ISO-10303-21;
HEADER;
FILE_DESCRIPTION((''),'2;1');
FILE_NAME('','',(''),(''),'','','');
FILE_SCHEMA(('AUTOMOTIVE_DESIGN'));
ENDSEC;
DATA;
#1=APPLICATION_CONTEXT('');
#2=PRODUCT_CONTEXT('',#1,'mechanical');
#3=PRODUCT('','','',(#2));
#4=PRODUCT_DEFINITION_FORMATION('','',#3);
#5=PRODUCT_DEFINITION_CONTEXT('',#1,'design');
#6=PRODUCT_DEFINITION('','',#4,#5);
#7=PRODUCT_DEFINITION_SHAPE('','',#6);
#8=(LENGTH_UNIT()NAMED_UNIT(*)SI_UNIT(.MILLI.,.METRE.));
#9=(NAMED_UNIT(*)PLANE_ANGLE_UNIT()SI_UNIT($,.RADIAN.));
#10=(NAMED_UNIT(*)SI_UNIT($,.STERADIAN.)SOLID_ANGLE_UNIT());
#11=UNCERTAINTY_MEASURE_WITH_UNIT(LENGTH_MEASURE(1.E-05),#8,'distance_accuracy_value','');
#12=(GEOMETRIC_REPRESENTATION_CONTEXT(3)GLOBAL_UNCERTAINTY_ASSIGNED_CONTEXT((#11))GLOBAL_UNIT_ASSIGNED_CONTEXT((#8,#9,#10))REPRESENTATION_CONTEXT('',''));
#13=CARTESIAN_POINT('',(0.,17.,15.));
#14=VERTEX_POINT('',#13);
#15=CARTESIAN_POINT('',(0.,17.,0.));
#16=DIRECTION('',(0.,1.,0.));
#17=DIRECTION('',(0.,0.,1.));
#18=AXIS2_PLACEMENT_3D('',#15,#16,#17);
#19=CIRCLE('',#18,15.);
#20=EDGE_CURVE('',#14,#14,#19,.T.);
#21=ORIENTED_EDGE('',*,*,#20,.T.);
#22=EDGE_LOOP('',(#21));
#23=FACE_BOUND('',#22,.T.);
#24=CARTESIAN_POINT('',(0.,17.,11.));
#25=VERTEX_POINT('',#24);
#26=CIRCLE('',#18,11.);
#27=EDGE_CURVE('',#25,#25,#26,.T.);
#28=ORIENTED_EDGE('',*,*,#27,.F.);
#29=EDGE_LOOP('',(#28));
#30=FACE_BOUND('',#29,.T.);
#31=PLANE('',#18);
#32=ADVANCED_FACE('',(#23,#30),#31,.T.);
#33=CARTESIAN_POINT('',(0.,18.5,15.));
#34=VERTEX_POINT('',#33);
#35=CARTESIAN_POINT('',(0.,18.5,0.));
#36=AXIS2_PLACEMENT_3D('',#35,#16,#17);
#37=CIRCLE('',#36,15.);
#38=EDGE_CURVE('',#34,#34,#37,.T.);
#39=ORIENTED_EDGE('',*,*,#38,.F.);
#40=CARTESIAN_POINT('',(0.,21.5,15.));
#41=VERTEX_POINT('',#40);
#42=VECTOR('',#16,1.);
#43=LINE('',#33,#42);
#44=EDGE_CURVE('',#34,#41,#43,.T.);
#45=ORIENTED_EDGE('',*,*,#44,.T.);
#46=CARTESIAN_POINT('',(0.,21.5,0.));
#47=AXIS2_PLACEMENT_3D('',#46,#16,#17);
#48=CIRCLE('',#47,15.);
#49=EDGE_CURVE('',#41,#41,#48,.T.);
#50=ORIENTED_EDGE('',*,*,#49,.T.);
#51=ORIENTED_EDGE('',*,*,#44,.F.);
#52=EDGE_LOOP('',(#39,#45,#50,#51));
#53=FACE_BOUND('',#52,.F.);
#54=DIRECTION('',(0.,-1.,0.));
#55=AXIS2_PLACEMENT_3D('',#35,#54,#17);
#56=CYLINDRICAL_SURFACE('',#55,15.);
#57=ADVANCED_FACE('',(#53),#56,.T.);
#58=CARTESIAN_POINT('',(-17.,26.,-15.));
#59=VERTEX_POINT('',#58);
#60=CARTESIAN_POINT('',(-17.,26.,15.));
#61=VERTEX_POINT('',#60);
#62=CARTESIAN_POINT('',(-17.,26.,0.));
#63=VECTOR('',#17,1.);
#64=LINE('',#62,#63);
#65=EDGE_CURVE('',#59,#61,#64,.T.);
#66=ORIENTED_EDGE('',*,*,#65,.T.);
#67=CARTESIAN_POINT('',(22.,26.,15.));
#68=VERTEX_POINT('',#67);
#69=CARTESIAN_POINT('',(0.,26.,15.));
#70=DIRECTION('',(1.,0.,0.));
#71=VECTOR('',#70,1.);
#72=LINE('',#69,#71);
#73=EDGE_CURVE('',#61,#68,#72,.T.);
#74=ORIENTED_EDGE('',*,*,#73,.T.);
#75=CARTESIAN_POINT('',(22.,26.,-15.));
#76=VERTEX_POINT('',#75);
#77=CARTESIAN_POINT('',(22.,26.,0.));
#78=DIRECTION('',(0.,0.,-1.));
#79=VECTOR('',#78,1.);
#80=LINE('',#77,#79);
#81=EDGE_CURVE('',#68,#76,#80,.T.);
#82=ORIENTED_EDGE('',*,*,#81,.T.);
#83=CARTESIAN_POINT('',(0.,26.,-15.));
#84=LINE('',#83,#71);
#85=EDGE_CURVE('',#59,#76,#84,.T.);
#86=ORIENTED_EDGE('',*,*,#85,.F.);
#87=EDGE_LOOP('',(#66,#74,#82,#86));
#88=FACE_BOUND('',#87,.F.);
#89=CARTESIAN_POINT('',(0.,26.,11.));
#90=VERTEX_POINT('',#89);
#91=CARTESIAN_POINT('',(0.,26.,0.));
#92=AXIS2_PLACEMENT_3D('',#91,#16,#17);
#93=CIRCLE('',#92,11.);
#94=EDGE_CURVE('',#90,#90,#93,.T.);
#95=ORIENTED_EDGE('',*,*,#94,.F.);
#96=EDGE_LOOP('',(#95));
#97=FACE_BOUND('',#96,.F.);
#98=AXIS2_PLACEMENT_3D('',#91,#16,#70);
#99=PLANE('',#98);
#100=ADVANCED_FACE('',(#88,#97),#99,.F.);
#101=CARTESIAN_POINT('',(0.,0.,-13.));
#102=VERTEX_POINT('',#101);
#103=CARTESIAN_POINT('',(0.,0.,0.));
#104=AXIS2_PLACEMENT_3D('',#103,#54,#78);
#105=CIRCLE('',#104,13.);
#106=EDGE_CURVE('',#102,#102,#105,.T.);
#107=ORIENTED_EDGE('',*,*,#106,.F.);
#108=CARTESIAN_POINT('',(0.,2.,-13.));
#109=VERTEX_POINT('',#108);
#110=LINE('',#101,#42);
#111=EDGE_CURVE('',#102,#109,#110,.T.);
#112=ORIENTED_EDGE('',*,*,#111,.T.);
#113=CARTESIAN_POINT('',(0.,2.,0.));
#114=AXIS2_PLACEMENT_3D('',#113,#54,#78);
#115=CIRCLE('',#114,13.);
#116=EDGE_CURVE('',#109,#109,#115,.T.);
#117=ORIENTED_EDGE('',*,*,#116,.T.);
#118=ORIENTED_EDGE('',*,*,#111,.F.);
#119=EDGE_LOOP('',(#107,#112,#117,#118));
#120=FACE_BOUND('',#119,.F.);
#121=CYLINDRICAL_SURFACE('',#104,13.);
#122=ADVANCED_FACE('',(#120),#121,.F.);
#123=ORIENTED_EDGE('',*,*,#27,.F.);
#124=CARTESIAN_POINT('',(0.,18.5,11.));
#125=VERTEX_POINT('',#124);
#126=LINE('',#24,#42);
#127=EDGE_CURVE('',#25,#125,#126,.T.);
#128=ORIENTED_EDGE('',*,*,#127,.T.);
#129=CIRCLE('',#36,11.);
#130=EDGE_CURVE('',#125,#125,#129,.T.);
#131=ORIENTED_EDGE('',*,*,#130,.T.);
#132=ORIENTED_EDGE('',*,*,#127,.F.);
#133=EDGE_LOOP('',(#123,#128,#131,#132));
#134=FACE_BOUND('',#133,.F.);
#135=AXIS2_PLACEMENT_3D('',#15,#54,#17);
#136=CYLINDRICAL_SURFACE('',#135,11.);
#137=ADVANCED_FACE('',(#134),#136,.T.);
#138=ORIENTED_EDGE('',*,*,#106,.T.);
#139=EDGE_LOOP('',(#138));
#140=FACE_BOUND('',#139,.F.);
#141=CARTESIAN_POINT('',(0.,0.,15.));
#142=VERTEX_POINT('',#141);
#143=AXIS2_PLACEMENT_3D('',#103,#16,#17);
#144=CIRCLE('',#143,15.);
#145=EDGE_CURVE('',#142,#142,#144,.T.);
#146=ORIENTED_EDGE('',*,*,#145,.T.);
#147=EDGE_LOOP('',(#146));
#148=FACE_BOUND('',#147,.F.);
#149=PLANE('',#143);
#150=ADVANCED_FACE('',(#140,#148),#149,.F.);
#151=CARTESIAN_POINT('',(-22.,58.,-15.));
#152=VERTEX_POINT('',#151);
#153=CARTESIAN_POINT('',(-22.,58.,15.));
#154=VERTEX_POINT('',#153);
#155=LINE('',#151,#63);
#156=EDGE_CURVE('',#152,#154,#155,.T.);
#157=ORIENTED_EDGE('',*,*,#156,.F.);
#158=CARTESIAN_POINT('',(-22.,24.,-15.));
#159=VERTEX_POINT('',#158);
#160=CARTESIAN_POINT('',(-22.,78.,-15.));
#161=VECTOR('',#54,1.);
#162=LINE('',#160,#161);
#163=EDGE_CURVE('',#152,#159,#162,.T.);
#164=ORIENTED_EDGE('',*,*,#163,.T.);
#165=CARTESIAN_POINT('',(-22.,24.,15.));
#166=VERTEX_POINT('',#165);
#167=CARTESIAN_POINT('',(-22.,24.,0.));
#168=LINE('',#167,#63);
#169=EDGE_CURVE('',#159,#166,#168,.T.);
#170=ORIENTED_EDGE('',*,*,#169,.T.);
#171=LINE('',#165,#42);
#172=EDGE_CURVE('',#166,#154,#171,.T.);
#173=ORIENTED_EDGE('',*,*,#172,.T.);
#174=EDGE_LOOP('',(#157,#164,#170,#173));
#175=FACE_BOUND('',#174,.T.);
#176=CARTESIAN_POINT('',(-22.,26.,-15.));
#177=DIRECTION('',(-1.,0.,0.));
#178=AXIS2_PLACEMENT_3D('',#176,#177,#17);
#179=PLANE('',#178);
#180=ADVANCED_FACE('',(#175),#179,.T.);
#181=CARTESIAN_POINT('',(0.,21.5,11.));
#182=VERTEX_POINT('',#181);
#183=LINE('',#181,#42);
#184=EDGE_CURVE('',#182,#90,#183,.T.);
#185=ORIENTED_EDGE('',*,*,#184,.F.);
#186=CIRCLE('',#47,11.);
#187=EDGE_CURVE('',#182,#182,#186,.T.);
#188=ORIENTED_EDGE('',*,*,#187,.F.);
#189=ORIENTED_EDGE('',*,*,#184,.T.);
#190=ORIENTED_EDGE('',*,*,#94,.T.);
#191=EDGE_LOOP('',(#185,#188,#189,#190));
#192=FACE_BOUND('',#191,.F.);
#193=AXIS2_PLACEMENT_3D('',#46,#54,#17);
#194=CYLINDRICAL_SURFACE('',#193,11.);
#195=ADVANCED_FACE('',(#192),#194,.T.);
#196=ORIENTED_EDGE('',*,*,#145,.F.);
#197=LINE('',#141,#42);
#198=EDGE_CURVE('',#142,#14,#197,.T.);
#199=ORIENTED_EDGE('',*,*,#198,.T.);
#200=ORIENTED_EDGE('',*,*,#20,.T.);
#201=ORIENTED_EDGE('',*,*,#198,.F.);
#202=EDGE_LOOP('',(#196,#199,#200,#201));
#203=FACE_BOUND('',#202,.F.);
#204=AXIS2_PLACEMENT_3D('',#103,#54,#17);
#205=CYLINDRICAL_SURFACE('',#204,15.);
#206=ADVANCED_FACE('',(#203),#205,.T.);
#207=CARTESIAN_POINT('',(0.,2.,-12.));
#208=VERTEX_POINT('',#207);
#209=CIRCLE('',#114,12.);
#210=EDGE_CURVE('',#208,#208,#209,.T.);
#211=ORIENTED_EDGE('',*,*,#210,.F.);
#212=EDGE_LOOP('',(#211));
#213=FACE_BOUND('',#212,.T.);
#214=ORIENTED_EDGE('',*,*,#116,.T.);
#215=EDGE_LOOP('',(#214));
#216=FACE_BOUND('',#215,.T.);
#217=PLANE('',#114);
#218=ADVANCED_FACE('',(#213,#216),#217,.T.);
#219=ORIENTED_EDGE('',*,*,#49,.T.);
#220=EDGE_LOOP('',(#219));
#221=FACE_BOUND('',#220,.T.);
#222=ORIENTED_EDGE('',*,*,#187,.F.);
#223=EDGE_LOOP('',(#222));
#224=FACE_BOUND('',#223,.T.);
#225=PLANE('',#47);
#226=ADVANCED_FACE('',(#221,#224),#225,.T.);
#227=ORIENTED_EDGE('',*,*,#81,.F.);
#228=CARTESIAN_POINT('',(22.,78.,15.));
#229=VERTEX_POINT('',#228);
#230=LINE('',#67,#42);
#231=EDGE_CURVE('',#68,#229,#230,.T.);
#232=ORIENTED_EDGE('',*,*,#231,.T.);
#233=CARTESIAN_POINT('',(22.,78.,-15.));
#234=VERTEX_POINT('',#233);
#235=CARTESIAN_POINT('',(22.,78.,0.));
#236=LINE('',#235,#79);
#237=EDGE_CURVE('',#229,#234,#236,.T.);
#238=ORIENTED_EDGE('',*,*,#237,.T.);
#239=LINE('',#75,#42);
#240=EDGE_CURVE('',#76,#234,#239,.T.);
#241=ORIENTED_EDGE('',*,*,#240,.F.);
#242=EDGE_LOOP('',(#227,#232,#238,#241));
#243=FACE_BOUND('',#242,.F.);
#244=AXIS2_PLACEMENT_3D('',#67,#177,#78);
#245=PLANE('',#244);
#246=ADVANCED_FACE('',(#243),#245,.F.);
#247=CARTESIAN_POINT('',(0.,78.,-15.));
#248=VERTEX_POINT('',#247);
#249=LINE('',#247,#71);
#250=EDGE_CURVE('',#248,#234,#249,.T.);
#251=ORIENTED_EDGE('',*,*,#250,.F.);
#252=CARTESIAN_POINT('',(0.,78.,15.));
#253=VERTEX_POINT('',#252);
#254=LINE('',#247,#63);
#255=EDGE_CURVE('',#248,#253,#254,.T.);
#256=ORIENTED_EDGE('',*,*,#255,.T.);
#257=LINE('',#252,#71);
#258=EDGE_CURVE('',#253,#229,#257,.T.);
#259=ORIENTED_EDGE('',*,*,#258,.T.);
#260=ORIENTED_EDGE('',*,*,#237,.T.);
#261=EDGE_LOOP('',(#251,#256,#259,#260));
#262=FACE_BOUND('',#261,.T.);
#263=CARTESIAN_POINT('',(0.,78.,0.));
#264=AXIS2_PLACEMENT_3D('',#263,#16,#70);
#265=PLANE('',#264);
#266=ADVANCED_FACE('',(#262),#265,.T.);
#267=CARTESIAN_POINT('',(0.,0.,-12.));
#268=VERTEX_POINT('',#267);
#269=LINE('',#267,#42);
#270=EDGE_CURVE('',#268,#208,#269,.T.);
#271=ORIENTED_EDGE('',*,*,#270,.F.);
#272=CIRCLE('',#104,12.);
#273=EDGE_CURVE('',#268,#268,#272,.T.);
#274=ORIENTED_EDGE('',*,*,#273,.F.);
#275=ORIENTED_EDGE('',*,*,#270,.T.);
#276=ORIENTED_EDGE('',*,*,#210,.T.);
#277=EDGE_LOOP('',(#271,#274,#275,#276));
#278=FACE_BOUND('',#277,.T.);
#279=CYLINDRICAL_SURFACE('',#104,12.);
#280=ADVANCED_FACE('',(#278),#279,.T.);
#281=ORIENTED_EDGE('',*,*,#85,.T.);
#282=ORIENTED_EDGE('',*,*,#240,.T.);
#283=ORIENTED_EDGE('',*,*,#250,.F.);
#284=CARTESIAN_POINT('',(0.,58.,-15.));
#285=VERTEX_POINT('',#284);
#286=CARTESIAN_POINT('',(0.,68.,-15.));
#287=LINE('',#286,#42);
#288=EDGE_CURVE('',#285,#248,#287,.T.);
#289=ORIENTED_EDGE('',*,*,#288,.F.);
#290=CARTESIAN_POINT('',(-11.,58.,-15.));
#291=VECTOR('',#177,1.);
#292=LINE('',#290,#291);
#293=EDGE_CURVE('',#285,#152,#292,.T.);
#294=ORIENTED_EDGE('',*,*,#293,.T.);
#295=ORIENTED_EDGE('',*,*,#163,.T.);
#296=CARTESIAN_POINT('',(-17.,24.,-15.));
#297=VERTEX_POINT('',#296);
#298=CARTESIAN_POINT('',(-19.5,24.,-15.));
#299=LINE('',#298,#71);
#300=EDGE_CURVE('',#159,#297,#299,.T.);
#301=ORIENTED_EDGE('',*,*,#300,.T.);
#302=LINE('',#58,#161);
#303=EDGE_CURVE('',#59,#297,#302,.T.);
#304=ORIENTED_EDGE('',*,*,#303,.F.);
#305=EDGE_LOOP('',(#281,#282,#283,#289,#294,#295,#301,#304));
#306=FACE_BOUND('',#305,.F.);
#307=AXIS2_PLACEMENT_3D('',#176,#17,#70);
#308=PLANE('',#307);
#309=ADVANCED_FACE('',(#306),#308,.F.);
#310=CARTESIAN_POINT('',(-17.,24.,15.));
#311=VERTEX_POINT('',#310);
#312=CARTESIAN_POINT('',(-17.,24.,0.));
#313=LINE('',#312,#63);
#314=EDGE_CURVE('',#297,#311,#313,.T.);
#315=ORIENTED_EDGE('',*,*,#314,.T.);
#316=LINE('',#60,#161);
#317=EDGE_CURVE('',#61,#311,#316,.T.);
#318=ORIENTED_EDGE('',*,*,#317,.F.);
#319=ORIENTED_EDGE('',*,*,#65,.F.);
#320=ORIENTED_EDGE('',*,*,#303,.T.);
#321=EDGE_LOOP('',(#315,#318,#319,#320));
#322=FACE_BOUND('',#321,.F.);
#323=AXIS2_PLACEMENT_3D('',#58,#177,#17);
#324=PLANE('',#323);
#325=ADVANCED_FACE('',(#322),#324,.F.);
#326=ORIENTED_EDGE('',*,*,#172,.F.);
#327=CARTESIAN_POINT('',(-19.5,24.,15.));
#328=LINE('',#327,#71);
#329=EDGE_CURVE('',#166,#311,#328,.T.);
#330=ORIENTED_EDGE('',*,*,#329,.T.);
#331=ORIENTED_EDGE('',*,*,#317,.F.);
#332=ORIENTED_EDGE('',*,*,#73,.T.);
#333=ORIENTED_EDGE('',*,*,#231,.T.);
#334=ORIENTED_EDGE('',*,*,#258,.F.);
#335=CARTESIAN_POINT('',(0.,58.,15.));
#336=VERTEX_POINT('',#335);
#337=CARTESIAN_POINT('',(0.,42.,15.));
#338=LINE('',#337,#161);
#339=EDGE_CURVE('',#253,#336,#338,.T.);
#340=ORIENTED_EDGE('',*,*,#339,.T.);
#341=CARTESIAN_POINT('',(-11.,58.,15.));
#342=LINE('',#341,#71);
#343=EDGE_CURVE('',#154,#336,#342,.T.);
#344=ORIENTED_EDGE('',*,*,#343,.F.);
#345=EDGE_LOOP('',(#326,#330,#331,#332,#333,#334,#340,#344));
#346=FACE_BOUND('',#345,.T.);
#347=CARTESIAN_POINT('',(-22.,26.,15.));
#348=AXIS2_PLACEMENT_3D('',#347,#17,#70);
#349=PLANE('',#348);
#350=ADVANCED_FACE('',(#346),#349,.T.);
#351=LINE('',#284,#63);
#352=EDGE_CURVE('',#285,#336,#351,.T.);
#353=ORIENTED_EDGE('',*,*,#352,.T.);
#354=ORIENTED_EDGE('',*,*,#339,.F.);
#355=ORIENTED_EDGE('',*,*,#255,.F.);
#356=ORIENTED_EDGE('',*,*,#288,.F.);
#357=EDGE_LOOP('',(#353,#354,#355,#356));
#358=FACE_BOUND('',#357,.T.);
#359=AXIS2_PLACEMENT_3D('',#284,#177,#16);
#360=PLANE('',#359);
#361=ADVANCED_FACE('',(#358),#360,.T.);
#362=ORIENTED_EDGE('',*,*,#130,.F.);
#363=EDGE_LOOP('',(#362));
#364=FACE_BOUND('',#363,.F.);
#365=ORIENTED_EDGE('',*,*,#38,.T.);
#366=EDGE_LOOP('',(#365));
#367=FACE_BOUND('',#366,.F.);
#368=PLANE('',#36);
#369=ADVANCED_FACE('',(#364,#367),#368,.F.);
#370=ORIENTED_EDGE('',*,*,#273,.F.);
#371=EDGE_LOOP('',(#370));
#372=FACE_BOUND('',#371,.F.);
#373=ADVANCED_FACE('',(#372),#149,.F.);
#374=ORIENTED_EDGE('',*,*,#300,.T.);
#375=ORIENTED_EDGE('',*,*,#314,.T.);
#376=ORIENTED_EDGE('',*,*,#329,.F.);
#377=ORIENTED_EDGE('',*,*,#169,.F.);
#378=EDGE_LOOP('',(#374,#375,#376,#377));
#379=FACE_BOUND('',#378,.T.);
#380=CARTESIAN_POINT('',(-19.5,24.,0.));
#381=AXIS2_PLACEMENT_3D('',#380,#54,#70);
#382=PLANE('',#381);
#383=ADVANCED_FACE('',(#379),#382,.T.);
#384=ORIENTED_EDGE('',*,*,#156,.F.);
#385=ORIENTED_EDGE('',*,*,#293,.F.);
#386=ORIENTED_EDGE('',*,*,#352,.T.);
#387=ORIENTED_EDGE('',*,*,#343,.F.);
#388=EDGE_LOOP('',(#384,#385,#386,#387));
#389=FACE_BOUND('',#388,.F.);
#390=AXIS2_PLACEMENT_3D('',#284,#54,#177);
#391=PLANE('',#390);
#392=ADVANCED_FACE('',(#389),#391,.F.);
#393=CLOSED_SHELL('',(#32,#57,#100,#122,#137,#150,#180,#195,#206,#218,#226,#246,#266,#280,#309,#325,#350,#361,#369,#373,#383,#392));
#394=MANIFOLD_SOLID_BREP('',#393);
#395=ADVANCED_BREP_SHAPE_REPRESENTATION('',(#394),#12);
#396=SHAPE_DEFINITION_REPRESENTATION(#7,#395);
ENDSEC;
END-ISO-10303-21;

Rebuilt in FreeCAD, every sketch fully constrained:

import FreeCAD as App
import Part
import Sketcher


def add_polygon(sketch, points):
    """Adds a closed chain of lines whose ends are joined by coincident constraints."""
    first, n = sketch.GeometryCount, len(points)
    for a, b in zip(points, points[1:] + points[:1]):
        sketch.addGeometry(Part.LineSegment(App.Vector(*a, 0), App.Vector(*b, 0)), False)
    for i in range(n):
        sketch.addConstraint(Sketcher.Constraint("Coincident", first + i, 2, first + (i + 1) % n, 1))

doc = App.newDocument("Part")
body = doc.addObject("PartDesign::Body", "Body")

# Sketch on XZ plane
sketch1 = doc.addObject("Sketcher::SketchObject", "Sketch")
body.addObject(sketch1)
sketch1.AttachmentSupport = (doc.XZ_Plane, [""])
sketch1.MapMode = "FlatFace"
sketch1.addGeometry(Part.Circle(App.Vector(0, 0, 0), App.Vector(0, 0, 1), 15), False)
sketch1.addConstraint([
    Sketcher.Constraint("Coincident", 0, 3, -1, 1),
    Sketcher.Constraint("Diameter", 0, 30.0),
])
pad1 = doc.addObject("PartDesign::Pad", "Pad")
body.addObject(pad1)
pad1.Profile = sketch1
pad1.Length = 17
pad1.Reversed = True

# Sketch on XZ plane
sketch2 = doc.addObject("Sketcher::SketchObject", "Sketch001")
body.addObject(sketch2)
sketch2.AttachmentSupport = (doc.XZ_Plane, [""])
sketch2.MapMode = "FlatFace"
sketch2.AttachmentOffset = App.Placement(App.Vector(0, 0, -17), App.Rotation())
sketch2.addGeometry(Part.Circle(App.Vector(0, 0, 0), App.Vector(0, 0, 1), 11), False)
sketch2.addConstraint([
    Sketcher.Constraint("Coincident", 0, 3, -1, 1),
    Sketcher.Constraint("Diameter", 0, 22.0),
])
pad2 = doc.addObject("PartDesign::Pad", "Pad001")
body.addObject(pad2)
pad2.Profile = sketch2
pad2.Length = 1.5
pad2.Reversed = True

# Sketch on XZ plane
sketch3 = doc.addObject("Sketcher::SketchObject", "Sketch002")
body.addObject(sketch3)
sketch3.AttachmentSupport = (doc.XZ_Plane, [""])
sketch3.MapMode = "FlatFace"
sketch3.AttachmentOffset = App.Placement(App.Vector(0, 0, -18.5), App.Rotation())
sketch3.addGeometry(Part.Circle(App.Vector(0, 0, 0), App.Vector(0, 0, 1), 15), False)
sketch3.addConstraint([
    Sketcher.Constraint("Coincident", 0, 3, -1, 1),
    Sketcher.Constraint("Diameter", 0, 30.0),
])
pad3 = doc.addObject("PartDesign::Pad", "Pad002")
body.addObject(pad3)
pad3.Profile = sketch3
pad3.Length = 3
pad3.Reversed = True

# Sketch on XZ plane
sketch4 = doc.addObject("Sketcher::SketchObject", "Sketch003")
body.addObject(sketch4)
sketch4.AttachmentSupport = (doc.XZ_Plane, [""])
sketch4.MapMode = "FlatFace"
sketch4.AttachmentOffset = App.Placement(App.Vector(0, 0, -21.5), App.Rotation())
sketch4.addGeometry(Part.Circle(App.Vector(0, 0, 0), App.Vector(0, 0, 1), 11), False)
sketch4.addConstraint([
    Sketcher.Constraint("Coincident", 0, 3, -1, 1),
    Sketcher.Constraint("Diameter", 0, 22.0),
])
pad4 = doc.addObject("PartDesign::Pad", "Pad003")
body.addObject(pad4)
pad4.Profile = sketch4
pad4.Length = 4.5
pad4.Reversed = True

# Sketch on XZ plane
sketch5 = doc.addObject("Sketcher::SketchObject", "Sketch004")
body.addObject(sketch5)
sketch5.AttachmentSupport = (doc.XZ_Plane, [""])
sketch5.MapMode = "FlatFace"
sketch5.AttachmentOffset = App.Placement(App.Vector(0, 0, -26), App.Rotation())
add_polygon(sketch5, [(-22, -15), (-22, 15), (22, 15), (22, -15)])  # lines 0-3
sketch5.addConstraint([
    Sketcher.Constraint("Vertical", 0),
    Sketcher.Constraint("Horizontal", 1),
    Sketcher.Constraint("Vertical", 2),
    Sketcher.Constraint("Horizontal", 3),
    Sketcher.Constraint("Symmetric", 0, 2, 2, 2, -1, 1),
    Sketcher.Constraint("DistanceX", 1, 1, 1, 2, 44.0),
    Sketcher.Constraint("DistanceY", 0, 1, 0, 2, 30.0),
])
pad5 = doc.addObject("PartDesign::Pad", "Pad004")
body.addObject(pad5)
pad5.Profile = sketch5
pad5.Length = 52
pad5.Reversed = True

# Sketch on XZ plane
sketch6 = doc.addObject("Sketcher::SketchObject", "Sketch005")
body.addObject(sketch6)
sketch6.AttachmentSupport = (doc.XZ_Plane, [""])
sketch6.MapMode = "FlatFace"
sketch6.AttachmentOffset = App.Placement(App.Vector(0, 0, -26), App.Rotation())
add_polygon(sketch6, [(-22, 15), (-22, -15), (-17, -15), (-17, 15)])  # lines 0-3
sketch6.addConstraint([
    Sketcher.Constraint("Vertical", 0),
    Sketcher.Constraint("Horizontal", 1),
    Sketcher.Constraint("Vertical", 2),
    Sketcher.Constraint("Horizontal", 3),
    Sketcher.Constraint("DistanceX", 1, 1, 1, 2, 5.0),
    Sketcher.Constraint("DistanceY", 0, 2, 0, 1, 30.0),
    Sketcher.Constraint("DistanceX", 0, 2, -1, 1, 22.0),
    Sketcher.Constraint("DistanceY", 0, 2, -1, 1, 15.0),
])
pad6 = doc.addObject("PartDesign::Pad", "Pad005")
body.addObject(pad6)
pad6.Profile = sketch6
pad6.Length = 2

# Sketch on XY plane
sketch7 = doc.addObject("Sketcher::SketchObject", "Sketch006")
body.addObject(sketch7)
sketch7.AttachmentSupport = (doc.XY_Plane, [""])
sketch7.MapMode = "FlatFace"
sketch7.AttachmentOffset = App.Placement(App.Vector(0, 0, -15), App.Rotation())
add_polygon(sketch7, [(0, 78), (0, 58), (-22, 58), (-22, 78)])  # lines 0-3
sketch7.addConstraint([
    Sketcher.Constraint("Vertical", 0),
    Sketcher.Constraint("Horizontal", 1),
    Sketcher.Constraint("Vertical", 2),
    Sketcher.Constraint("Horizontal", 3),
    Sketcher.Constraint("PointOnObject", 0, 2, -2),
    Sketcher.Constraint("DistanceX", 1, 2, 1, 1, 22.0),
    Sketcher.Constraint("DistanceY", 0, 2, 0, 1, 20.0),
    Sketcher.Constraint("DistanceY", -1, 1, 0, 2, 58.0),
])
pocket1 = doc.addObject("PartDesign::Pocket", "Pocket")
body.addObject(pocket1)
pocket1.Profile = sketch7
pocket1.Type = "ThroughAll"
pocket1.Reversed = True

# Sketch on XZ plane
sketch8 = doc.addObject("Sketcher::SketchObject", "Sketch007")
body.addObject(sketch8)
sketch8.AttachmentSupport = (doc.XZ_Plane, [""])
sketch8.MapMode = "FlatFace"
sketch8.addGeometry([
    Part.Circle(App.Vector(0, 0, 0), App.Vector(0, 0, 1), 13),
    Part.Circle(App.Vector(0, 0, 0), App.Vector(0, 0, 1), 12),
], False)
sketch8.addConstraint([
    Sketcher.Constraint("Coincident", 0, 3, -1, 1),
    Sketcher.Constraint("Coincident", 1, 3, -1, 1),
    Sketcher.Constraint("Diameter", 0, 26.0),
    Sketcher.Constraint("Diameter", 1, 24.0),
])
pocket2 = doc.addObject("PartDesign::Pocket", "Pocket001")
body.addObject(pocket2)
pocket2.Profile = sketch8
pocket2.Length = 2

doc.recompute()
